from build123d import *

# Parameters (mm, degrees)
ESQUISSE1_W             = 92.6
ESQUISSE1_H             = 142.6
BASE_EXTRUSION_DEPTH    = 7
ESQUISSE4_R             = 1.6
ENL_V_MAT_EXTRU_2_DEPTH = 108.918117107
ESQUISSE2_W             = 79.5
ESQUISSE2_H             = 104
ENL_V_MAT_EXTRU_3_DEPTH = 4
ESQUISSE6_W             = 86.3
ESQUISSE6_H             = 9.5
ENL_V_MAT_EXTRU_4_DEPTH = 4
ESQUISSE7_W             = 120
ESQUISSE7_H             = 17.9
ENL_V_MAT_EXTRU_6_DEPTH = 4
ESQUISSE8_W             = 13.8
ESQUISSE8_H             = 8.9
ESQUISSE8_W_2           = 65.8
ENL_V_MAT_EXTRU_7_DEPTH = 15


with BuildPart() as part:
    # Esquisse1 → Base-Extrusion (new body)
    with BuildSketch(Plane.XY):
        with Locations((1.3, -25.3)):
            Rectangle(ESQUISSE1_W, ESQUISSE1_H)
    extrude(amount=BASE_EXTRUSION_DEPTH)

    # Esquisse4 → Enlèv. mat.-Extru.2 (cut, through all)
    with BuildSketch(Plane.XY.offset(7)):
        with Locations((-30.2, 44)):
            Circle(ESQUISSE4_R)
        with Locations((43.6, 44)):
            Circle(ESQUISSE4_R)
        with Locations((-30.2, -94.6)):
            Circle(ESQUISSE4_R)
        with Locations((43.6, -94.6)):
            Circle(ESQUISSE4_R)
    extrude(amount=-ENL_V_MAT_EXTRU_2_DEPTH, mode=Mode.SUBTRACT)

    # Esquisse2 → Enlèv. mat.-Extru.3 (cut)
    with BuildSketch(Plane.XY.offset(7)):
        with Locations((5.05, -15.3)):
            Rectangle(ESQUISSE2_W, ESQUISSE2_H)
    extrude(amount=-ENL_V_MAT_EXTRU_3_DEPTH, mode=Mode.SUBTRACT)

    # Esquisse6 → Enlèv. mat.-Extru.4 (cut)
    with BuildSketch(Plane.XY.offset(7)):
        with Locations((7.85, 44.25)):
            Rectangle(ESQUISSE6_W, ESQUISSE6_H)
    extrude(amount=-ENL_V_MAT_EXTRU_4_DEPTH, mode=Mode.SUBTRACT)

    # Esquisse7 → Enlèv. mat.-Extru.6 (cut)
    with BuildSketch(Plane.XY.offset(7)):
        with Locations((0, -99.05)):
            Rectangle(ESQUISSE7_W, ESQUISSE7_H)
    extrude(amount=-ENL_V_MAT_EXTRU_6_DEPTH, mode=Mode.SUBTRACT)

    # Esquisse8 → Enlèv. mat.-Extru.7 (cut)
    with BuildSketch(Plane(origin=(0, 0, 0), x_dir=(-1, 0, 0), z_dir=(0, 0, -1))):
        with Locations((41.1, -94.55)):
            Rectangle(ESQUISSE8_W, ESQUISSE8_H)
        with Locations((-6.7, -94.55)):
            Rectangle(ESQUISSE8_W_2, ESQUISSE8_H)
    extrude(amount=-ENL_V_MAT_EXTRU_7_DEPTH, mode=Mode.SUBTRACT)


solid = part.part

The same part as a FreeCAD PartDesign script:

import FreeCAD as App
import Part
import Sketcher
from FreeCAD import Vector
Q = App.Units.Quantity

doc = App.newDocument("Part")
body = doc.addObject("PartDesign::Body", "Body")

# Sketch on XY plane
sketch1 = body.newObject("Sketcher::SketchObject", "Sketch")
sketch1.AttachmentSupport = (doc.getObject("XY_Plane"), [""])
sketch1.MapMode = "FlatFace"
sketch1.addGeometry([
    Part.LineSegment(Vector(-45, 46, 0), Vector(-45, -97, 0)),
    Part.LineSegment(Vector(-45, -97, 0), Vector(48, -97, 0)),
    Part.LineSegment(Vector(48, -97, 0), Vector(48, 46, 0)),
    Part.LineSegment(Vector(48, 46, 0), Vector(-45, 46, 0)),
], False)
sketch1.addConstraint([
    Sketcher.Constraint("Coincident", 0, 2, 1, 1),
    Sketcher.Constraint("Coincident", 1, 2, 2, 1),
    Sketcher.Constraint("Coincident", 2, 2, 3, 1),
    Sketcher.Constraint("Coincident", 3, 2, 0, 1),
    Sketcher.Constraint("Vertical", 0),
    Sketcher.Constraint("Horizontal", 1),
    Sketcher.Constraint("Vertical", 2),
    Sketcher.Constraint("Horizontal", 3),
    Sketcher.Constraint("DistanceX", 1, 1, 1, 2, Q("92.6 mm")),
    Sketcher.Constraint("DistanceY", 0, 2, 0, 1, Q("142.6 mm")),
    Sketcher.Constraint("DistanceX", 0, 2, -1, 1, Q("45 mm")),
    Sketcher.Constraint("DistanceY", -1, 1, 2, 2, Q("46 mm")),
])
pad1 = body.newObject("PartDesign::Pad", "Pad")
pad1.Profile = sketch1
pad1.Length = 7

# Sketch on XY plane
sketch2 = body.newObject("Sketcher::SketchObject", "Sketch001")
sketch2.AttachmentSupport = (doc.getObject("XY_Plane"), [""])
sketch2.MapMode = "FlatFace"
sketch2.AttachmentOffset = App.Placement(Vector(0, 0, 7), App.Rotation())
sketch2.addGeometry([
    Part.Circle(Vector(-30.2, 44, 0), Vector(0, 0, 1), 1.6),
    Part.Circle(Vector(43.6, 44, 0), Vector(0, 0, 1), 1.6),
    Part.Circle(Vector(-30.2, -94.6, 0), Vector(0, 0, 1), 1.6),
    Part.Circle(Vector(43.6, -94.6, 0), Vector(0, 0, 1), 1.6),
], False)
sketch2.addConstraint([
    Sketcher.Constraint("Equal", 0, 1),
    Sketcher.Constraint("Equal", 1, 2),
    Sketcher.Constraint("Equal", 2, 3),
    Sketcher.Constraint("Horizontal", 0, 3, 1, 3),
    Sketcher.Constraint("Horizontal", 2, 3, 3, 3),
    Sketcher.Constraint("Vertical", 0, 3, 2, 3),
    Sketcher.Constraint("Vertical", 1, 3, 3, 3),
    Sketcher.Constraint("Diameter", 0, Q("3.2 mm")),
    Sketcher.Constraint("DistanceY", -1, 1, 0, 3, Q("44 mm")),
    Sketcher.Constraint("DistanceX", 0, 3, -1, 1, Q("30.2 mm")),
    Sketcher.Constraint("DistanceX", -1, 1, 1, 3, Q("43.6 mm")),
    Sketcher.Constraint("DistanceY", 2, 3, -1, 1, Q("94.6 mm")),
])
pocket1 = body.newObject("PartDesign::Pocket", "Pocket")
pocket1.Profile = sketch2
pocket1.Type = "ThroughAll"

# Sketch on XY plane
sketch3 = body.newObject("Sketcher::SketchObject", "Sketch002")
sketch3.AttachmentSupport = (doc.getObject("XY_Plane"), [""])
sketch3.MapMode = "FlatFace"
sketch3.AttachmentOffset = App.Placement(Vector(0, 0, 7), App.Rotation())
sketch3.addGeometry([
    Part.LineSegment(Vector(-35, 37, 0), Vector(-35, -67, 0)),
    Part.LineSegment(Vector(-35, -67, 0), Vector(45, -67, 0)),
    Part.LineSegment(Vector(45, -67, 0), Vector(45, 37, 0)),
    Part.LineSegment(Vector(45, 37, 0), Vector(-35, 37, 0)),
], False)
sketch3.addConstraint([
    Sketcher.Constraint("Coincident", 0, 2, 1, 1),
    Sketcher.Constraint("Coincident", 1, 2, 2, 1),
    Sketcher.Constraint("Coincident", 2, 2, 3, 1),
    Sketcher.Constraint("Coincident", 3, 2, 0, 1),
    Sketcher.Constraint("Vertical", 0),
    Sketcher.Constraint("Horizontal", 1),
    Sketcher.Constraint("Vertical", 2),
    Sketcher.Constraint("Horizontal", 3),
    Sketcher.Constraint("DistanceY", 0, 2, 0, 1, Q("104 mm")),
    Sketcher.Constraint("DistanceX", 1, 1, 1, 2, Q("79.5 mm")),
    Sketcher.Constraint("DistanceX", 0, 2, -1, 1, Q("34.7 mm")),
    Sketcher.Constraint("DistanceY", 0, 2, -1, 1, Q("67.3 mm")),
])
pocket2 = body.newObject("PartDesign::Pocket", "Pocket001")
pocket2.Profile = sketch3
pocket2.Length = 4

# Sketch on XY plane
sketch4 = body.newObject("Sketcher::SketchObject", "Sketch003")
sketch4.AttachmentSupport = (doc.getObject("XY_Plane"), [""])
sketch4.MapMode = "FlatFace"
sketch4.AttachmentOffset = App.Placement(Vector(0, 0, 7), App.Rotation())
sketch4.addGeometry([
    Part.LineSegment(Vector(-35, 49, 0), Vector(-35, 40, 0)),
    Part.LineSegment(Vector(-35, 40, 0), Vector(51, 40, 0)),
    Part.LineSegment(Vector(51, 40, 0), Vector(51, 49, 0)),
    Part.LineSegment(Vector(51, 49, 0), Vector(-35, 49, 0)),
], False)
sketch4.addConstraint([
    Sketcher.Constraint("Coincident", 0, 2, 1, 1),
    Sketcher.Constraint("Coincident", 1, 2, 2, 1),
    Sketcher.Constraint("Coincident", 2, 2, 3, 1),
    Sketcher.Constraint("Coincident", 3, 2, 0, 1),
    Sketcher.Constraint("Vertical", 0),
    Sketcher.Constraint("Horizontal", 1),
    Sketcher.Constraint("Vertical", 2),
    Sketcher.Constraint("Horizontal", 3),
    Sketcher.Constraint("DistanceX", 1, 1, 1, 2, Q("86.3 mm")),
    Sketcher.Constraint("DistanceY", 0, 2, 0, 1, Q("9.5 mm")),
    Sketcher.Constraint("DistanceX", -1, 1, 1, 2, Q("51 mm")),
    Sketcher.Constraint("DistanceY", -1, 1, 2, 2, Q("49 mm")),
])
pocket3 = body.newObject("PartDesign::Pocket", "Pocket002")
pocket3.Profile = sketch4
pocket3.Length = 4

# Sketch on XY plane
sketch5 = body.newObject("Sketcher::SketchObject", "Sketch004")
sketch5.AttachmentSupport = (doc.getObject("XY_Plane"), [""])
sketch5.MapMode = "FlatFace"
sketch5.AttachmentOffset = App.Placement(Vector(0, 0, 7), App.Rotation())
sketch5.addGeometry([
    Part.LineSegment(Vector(-60, -90, 0), Vector(-60, -108, 0)),
    Part.LineSegment(Vector(-60, -108, 0), Vector(60, -108, 0)),
    Part.LineSegment(Vector(60, -108, 0), Vector(60, -90, 0)),
    Part.LineSegment(Vector(60, -90, 0), Vector(-60, -90, 0)),
], False)
sketch5.addConstraint([
    Sketcher.Constraint("Coincident", 0, 2, 1, 1),
    Sketcher.Constraint("Coincident", 1, 2, 2, 1),
    Sketcher.Constraint("Coincident", 2, 2, 3, 1),
    Sketcher.Constraint("Coincident", 3, 2, 0, 1),
    Sketcher.Constraint("Vertical", 0),
    Sketcher.Constraint("Horizontal", 1),
    Sketcher.Constraint("Vertical", 2),
    Sketcher.Constraint("Horizontal", 3),
    Sketcher.Constraint("DistanceX", 1, 1, 1, 2, Q("120 mm")),
    Sketcher.Constraint("DistanceY", 0, 2, 0, 1, Q("17.9 mm")),
    Sketcher.Constraint("DistanceX", 0, 2, -1, 1, Q("60 mm")),
    Sketcher.Constraint("DistanceY", 0, 2, -1, 1, Q("108 mm")),
])
pocket4 = body.newObject("PartDesign::Pocket", "Pocket003")
pocket4.Profile = sketch5
pocket4.Length = 4

# Sketch on XY plane
sketch6 = body.newObject("Sketcher::SketchObject", "Sketch005")
sketch6.AttachmentSupport = (doc.getObject("XY_Plane"), [""])
sketch6.MapMode = "FlatFace"
sketch6.addGeometry([
    Part.LineSegment(Vector(-34, -90, 0), Vector(-34, -99, 0)),  # 0
    Part.LineSegment(Vector(-34, -99, 0), Vector(-48, -99, 0)),  # 1
    Part.LineSegment(Vector(-48, -99, 0), Vector(-48, -90, 0)),  # 2
    Part.LineSegment(Vector(-48, -90, 0), Vector(-34, -90, 0)),  # 3
    Part.LineSegment(Vector(40, -90, 0), Vector(40, -99, 0)),  # 4
    Part.LineSegment(Vector(40, -99, 0), Vector(-26, -99, 0)),  # 5
    Part.LineSegment(Vector(-26, -99, 0), Vector(-26, -90, 0)),  # 6
    Part.LineSegment(Vector(-26, -90, 0), Vector(40, -90, 0)),  # 7
], False)
sketch6.addConstraint([
    Sketcher.Constraint("Coincident", 0, 2, 1, 1),
    Sketcher.Constraint("Coincident", 1, 2, 2, 1),
    Sketcher.Constraint("Coincident", 2, 2, 3, 1),
    Sketcher.Constraint("Coincident", 3, 2, 0, 1),
    Sketcher.Constraint("Coincident", 4, 2, 5, 1),
    Sketcher.Constraint("Coincident", 5, 2, 6, 1),
    Sketcher.Constraint("Coincident", 6, 2, 7, 1),
    Sketcher.Constraint("Coincident", 7, 2, 4, 1),
    Sketcher.Constraint("Vertical", 0),
    Sketcher.Constraint("Horizontal", 1),
    Sketcher.Constraint("Vertical", 2),
    Sketcher.Constraint("Horizontal", 3),
    Sketcher.Constraint("Vertical", 4),
    Sketcher.Constraint("Horizontal", 5),
    Sketcher.Constraint("Vertical", 6),
    Sketcher.Constraint("Horizontal", 7),
    Sketcher.Constraint("Horizontal", 1, 2, 4, 2),
    Sketcher.Constraint("Horizontal", 3, 2, 6, 2),
    Sketcher.Constraint("DistanceX", 1, 2, 1, 1, Q("13.8 mm")),
    Sketcher.Constraint("DistanceX", 5, 2, 5, 1, Q("65.8 mm")),
    Sketcher.Constraint("DistanceY", 0, 2, 0, 1, Q("8.9 mm")),
    Sketcher.Constraint("DistanceY", 0, 2, -1, 1, Q("99 mm")),
    Sketcher.Constraint("DistanceX", 1, 2, -1, 1, Q("48 mm")),
    Sketcher.Constraint("DistanceX", 0, 2, 5, 2, Q("8 mm")),
])
pocket5 = body.newObject("PartDesign::Pocket", "Pocket004")
pocket5.Profile = sketch6
pocket5.Length = 15
pocket5.Reversed = True

doc.recompute()
